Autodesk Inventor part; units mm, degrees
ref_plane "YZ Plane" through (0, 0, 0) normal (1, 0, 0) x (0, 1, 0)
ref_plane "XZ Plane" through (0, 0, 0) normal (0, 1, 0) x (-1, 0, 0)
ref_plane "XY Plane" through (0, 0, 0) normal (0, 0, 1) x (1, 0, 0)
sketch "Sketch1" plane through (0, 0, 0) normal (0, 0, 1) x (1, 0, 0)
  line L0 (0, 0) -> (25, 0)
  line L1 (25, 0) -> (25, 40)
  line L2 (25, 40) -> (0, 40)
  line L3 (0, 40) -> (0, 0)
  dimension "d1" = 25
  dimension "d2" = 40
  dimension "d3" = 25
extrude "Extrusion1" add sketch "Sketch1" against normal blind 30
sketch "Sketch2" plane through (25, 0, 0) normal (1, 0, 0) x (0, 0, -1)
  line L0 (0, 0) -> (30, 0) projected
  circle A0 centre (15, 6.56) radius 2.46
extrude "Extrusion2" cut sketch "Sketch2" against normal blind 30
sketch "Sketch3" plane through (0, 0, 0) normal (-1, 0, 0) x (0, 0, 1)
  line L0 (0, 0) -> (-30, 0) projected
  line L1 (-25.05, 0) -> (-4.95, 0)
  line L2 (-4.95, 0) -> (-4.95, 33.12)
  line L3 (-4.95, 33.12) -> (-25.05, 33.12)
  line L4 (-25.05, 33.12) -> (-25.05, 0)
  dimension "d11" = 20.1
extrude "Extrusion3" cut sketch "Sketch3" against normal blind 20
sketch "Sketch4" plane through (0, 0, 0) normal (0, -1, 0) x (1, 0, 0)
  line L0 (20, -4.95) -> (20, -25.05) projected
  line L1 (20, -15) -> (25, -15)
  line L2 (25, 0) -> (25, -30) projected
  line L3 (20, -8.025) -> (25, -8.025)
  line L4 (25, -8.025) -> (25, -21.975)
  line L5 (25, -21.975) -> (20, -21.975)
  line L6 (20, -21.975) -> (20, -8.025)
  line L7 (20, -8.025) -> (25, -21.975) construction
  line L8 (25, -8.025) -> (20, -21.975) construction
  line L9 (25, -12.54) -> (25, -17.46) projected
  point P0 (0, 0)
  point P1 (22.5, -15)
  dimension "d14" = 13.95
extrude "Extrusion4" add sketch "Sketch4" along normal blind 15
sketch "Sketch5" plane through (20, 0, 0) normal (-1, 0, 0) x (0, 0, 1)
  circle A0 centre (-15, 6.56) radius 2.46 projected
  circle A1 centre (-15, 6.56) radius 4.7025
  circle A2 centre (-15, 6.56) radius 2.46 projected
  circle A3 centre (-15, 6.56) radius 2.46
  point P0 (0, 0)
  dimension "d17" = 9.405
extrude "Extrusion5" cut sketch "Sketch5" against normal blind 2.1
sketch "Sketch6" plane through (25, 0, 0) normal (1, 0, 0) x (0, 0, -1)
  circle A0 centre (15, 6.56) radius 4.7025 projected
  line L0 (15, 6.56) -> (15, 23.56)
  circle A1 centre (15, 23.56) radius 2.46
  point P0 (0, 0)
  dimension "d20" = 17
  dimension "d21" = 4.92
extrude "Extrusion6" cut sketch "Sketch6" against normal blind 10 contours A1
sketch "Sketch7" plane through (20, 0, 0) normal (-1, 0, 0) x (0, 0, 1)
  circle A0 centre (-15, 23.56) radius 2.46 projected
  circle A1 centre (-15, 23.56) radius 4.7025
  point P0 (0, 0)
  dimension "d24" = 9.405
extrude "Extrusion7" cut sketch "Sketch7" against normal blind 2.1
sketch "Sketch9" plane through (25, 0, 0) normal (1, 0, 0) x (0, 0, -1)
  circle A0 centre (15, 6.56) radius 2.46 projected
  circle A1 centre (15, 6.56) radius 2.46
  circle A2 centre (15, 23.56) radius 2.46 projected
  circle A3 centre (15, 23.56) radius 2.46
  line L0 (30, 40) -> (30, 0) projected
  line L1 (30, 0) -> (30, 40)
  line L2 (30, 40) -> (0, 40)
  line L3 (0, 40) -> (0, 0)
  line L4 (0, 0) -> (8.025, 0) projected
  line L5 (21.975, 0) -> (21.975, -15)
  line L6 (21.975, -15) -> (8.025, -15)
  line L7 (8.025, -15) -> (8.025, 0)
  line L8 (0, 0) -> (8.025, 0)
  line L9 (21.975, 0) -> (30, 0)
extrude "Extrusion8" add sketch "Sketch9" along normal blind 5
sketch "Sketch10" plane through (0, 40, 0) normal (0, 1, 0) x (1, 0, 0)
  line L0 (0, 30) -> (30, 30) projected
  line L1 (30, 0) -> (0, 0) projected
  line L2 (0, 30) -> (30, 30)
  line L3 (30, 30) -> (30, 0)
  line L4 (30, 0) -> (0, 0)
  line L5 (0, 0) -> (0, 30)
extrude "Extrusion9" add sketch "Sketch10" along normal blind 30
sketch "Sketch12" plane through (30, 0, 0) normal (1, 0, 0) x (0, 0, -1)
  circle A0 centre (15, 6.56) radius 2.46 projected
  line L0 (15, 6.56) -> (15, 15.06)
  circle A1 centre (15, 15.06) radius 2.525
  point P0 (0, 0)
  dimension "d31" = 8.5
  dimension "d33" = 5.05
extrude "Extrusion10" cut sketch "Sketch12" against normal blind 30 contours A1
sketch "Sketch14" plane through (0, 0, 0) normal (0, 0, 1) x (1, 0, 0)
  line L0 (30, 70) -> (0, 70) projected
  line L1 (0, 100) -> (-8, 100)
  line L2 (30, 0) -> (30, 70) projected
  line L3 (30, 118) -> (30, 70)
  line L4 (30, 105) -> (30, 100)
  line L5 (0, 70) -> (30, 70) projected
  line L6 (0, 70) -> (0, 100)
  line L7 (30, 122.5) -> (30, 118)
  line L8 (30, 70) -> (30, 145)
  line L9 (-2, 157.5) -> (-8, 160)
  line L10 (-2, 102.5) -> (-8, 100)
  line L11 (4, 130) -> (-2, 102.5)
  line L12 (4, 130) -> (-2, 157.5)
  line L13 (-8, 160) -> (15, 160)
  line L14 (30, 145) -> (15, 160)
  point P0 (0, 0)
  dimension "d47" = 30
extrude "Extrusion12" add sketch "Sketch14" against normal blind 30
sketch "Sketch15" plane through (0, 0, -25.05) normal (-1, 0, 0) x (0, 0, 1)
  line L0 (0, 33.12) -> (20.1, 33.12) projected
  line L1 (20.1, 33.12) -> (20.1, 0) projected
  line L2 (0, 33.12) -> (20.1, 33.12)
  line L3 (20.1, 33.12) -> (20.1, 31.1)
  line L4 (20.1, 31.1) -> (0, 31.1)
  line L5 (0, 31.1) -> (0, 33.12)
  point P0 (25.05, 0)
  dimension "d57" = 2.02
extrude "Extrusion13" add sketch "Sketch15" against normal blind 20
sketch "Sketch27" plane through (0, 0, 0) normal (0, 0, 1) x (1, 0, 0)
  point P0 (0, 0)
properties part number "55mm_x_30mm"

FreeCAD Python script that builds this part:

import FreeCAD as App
import Part
import Sketcher

V = App.Vector
Q = App.Units.Quantity

doc = App.newDocument("Part")
body = doc.addObject("PartDesign::Body", "Body")

# Sketch on XY plane
sketch1 = body.newObject("Sketcher::SketchObject", "Sketch")
sketch1.AttachmentSupport = (doc.getObject("XY_Plane"), [""])
sketch1.MapMode = "FlatFace"
sketch1.addGeometry(Part.LineSegment(V(0, 40, 0), V(0, 0, 0)), False)
sketch1.addGeometry(Part.LineSegment(V(0, 0, 0), V(25, 0, 0)), False)
sketch1.addGeometry(Part.LineSegment(V(25, 0, 0), V(25, 40, 0)), False)
sketch1.addGeometry(Part.LineSegment(V(25, 40, 0), V(0, 40, 0)), False)
sketch1.addConstraint(Sketcher.Constraint("Coincident", 0, 2, 1, 1))
sketch1.addConstraint(Sketcher.Constraint("Coincident", 1, 2, 2, 1))
sketch1.addConstraint(Sketcher.Constraint("Coincident", 2, 2, 3, 1))
sketch1.addConstraint(Sketcher.Constraint("Coincident", 3, 2, 0, 1))
sketch1.addConstraint(Sketcher.Constraint("Vertical", 0))
sketch1.addConstraint(Sketcher.Constraint("Horizontal", 1))
sketch1.addConstraint(Sketcher.Constraint("Vertical", 2))
sketch1.addConstraint(Sketcher.Constraint("Horizontal", 3))
sketch1.addConstraint(Sketcher.Constraint("Coincident", 0, 2, -1, 1))
sketch1.addConstraint(Sketcher.Constraint("DistanceX", 1, 1, 1, 2, Q("25 mm")))
sketch1.addConstraint(Sketcher.Constraint("DistanceY", 0, 2, 0, 1, Q("40 mm")))
pad1 = body.newObject("PartDesign::Pad", "Pad")
pad1.Profile = sketch1
pad1.Length = 30
pad1.Reversed = True

# Sketch on YZ plane
sketch2 = body.newObject("Sketcher::SketchObject", "Sketch001")
sketch2.AttachmentSupport = (doc.getObject("YZ_Plane"), [""])
sketch2.MapMode = "FlatFace"
sketch2.AttachmentOffset = App.Placement(V(0, 0, 25), App.Rotation())
sketch2.addGeometry(Part.Circle(V(6.6, -15, 0), V(0, 0, 1), 2.5), False)
sketch2.addConstraint(Sketcher.Constraint("Diameter", 0, Q("4.92 mm")))
sketch2.addConstraint(Sketcher.Constraint("DistanceY", 0, 3, -1, 1, Q("15 mm")))
sketch2.addConstraint(Sketcher.Constraint("DistanceX", -1, 1, 0, 3, Q("6.56 mm")))
pocket1 = body.newObject("PartDesign::Pocket", "Pocket")
pocket1.Profile = sketch2
pocket1.Length = 30

# Sketch on YZ plane
sketch3 = body.newObject("Sketcher::SketchObject", "Sketch002")
sketch3.AttachmentSupport = (doc.getObject("YZ_Plane"), [""])
sketch3.MapMode = "FlatFace"
sketch3.addGeometry(Part.LineSegment(V(0, -25, 0), V(0, -5, 0)), False)
sketch3.addGeometry(Part.LineSegment(V(0, -5, 0), V(33, -5, 0)), False)
sketch3.addGeometry(Part.LineSegment(V(33, -5, 0), V(33, -25, 0)), False)
sketch3.addGeometry(Part.LineSegment(V(33, -25, 0), V(0, -25, 0)), False)
sketch3.addConstraint(Sketcher.Constraint("Coincident", 0, 2, 1, 1))
sketch3.addConstraint(Sketcher.Constraint("Coincident", 1, 2, 2, 1))
sketch3.addConstraint(Sketcher.Constraint("Coincident", 2, 2, 3, 1))
sketch3.addConstraint(Sketcher.Constraint("Coincident", 3, 2, 0, 1))
sketch3.addConstraint(Sketcher.Constraint("Vertical", 0))
sketch3.addConstraint(Sketcher.Constraint("Horizontal", 1))
sketch3.addConstraint(Sketcher.Constraint("Vertical", 2))
sketch3.addConstraint(Sketcher.Constraint("Horizontal", 3))
sketch3.addConstraint(Sketcher.Constraint("PointOnObject", 0, 2, -2))
sketch3.addConstraint(Sketcher.Constraint("DistanceY", 0, 1, 0, 2, Q("20.1 mm")))
sketch3.addConstraint(Sketcher.Constraint("DistanceX", 1, 1, 1, 2, Q("33.12 mm")))
sketch3.addConstraint(Sketcher.Constraint("DistanceY", 0, 2, -1, 1, Q("4.95 mm")))
pocket2 = body.newObject("PartDesign::Pocket", "Pocket001")
pocket2.Profile = sketch3
pocket2.Length = 20
pocket2.Reversed = True

# Sketch on XZ plane
sketch4 = body.newObject("Sketcher::SketchObject", "Sketch003")
sketch4.AttachmentSupport = (doc.getObject("XZ_Plane"), [""])
sketch4.MapMode = "FlatFace"
sketch4.addGeometry(Part.LineSegment(V(25, -8, 0), V(20, -8, 0)), False)
sketch4.addGeometry(Part.LineSegment(V(20, -8, 0), V(20, -22, 0)), False)
sketch4.addGeometry(Part.LineSegment(V(20, -22, 0), V(25, -22, 0)), False)
sketch4.addGeometry(Part.LineSegment(V(25, -22, 0), V(25, -8, 0)), False)
sketch4.addConstraint(Sketcher.Constraint("Coincident", 0, 2, 1, 1))
sketch4.addConstraint(Sketcher.Constraint("Coincident", 1, 2, 2, 1))
sketch4.addConstraint(Sketcher.Constraint("Coincident", 2, 2, 3, 1))
sketch4.addConstraint(Sketcher.Constraint("Coincident", 3, 2, 0, 1))
sketch4.addConstraint(Sketcher.Constraint("Horizontal", 0))
sketch4.addConstraint(Sketcher.Constraint("Vertical", 1))
sketch4.addConstraint(Sketcher.Constraint("Horizontal", 2))
sketch4.addConstraint(Sketcher.Constraint("Vertical", 3))
sketch4.addConstraint(Sketcher.Constraint("DistanceY", 1, 2, 1, 1, Q("13.95 mm")))
sketch4.addConstraint(Sketcher.Constraint("DistanceX", 0, 2, 0, 1, Q("5 mm")))
sketch4.addConstraint(Sketcher.Constraint("DistanceX", -1, 1, 0, 2, Q("20 mm")))
sketch4.addConstraint(Sketcher.Constraint("DistanceY", 0, 2, -1, 1, Q("8.025 mm")))
pad2 = body.newObject("PartDesign::Pad", "Pad001")
pad2.Profile = sketch4
pad2.Length = 15

# Sketch on YZ plane
sketch5 = body.newObject("Sketcher::SketchObject", "Sketch004")
sketch5.AttachmentSupport = (doc.getObject("YZ_Plane"), [""])
sketch5.MapMode = "FlatFace"
sketch5.AttachmentOffset = App.Placement(V(0, 0, 20), App.Rotation())
sketch5.addGeometry(Part.Circle(V(6.6, -15, 0), V(0, 0, 1), 4.7), False)
sketch5.addGeometry(Part.Circle(V(6.6, -15, 0), V(0, 0, 1), 2.5), False)
sketch5.addConstraint(Sketcher.Constraint("Coincident", 1, 3, 0, 3))
sketch5.addConstraint(Sketcher.Constraint("Diameter", 0, Q("9.405 mm")))
sketch5.addConstraint(Sketcher.Constraint("Diameter", 1, Q("4.92 mm")))
sketch5.addConstraint(Sketcher.Constraint("DistanceY", 0, 3, -1, 1, Q("15 mm")))
sketch5.addConstraint(Sketcher.Constraint("DistanceX", -1, 1, 0, 3, Q("6.56 mm")))
pocket3 = body.newObject("PartDesign::Pocket", "Pocket002")
pocket3.Profile = sketch5
pocket3.Length = 2.1
pocket3.Reversed = True

# Sketch on YZ plane
sketch6 = body.newObject("Sketcher::SketchObject", "Sketch005")
sketch6.AttachmentSupport = (doc.getObject("YZ_Plane"), [""])
sketch6.MapMode = "FlatFace"
sketch6.AttachmentOffset = App.Placement(V(0, 0, 25), App.Rotation())
sketch6.addGeometry(Part.Circle(V(23.6, -15, 0), V(0, 0, 1), 2.5), False)
sketch6.addConstraint(Sketcher.Constraint("Diameter", 0, Q("4.92 mm")))
sketch6.addConstraint(Sketcher.Constraint("DistanceY", 0, 3, -1, 1, Q("15 mm")))
sketch6.addConstraint(Sketcher.Constraint("DistanceX", -1, 1, 0, 3, Q("23.56 mm")))
pocket4 = body.newObject("PartDesign::Pocket", "Pocket003")
pocket4.Profile = sketch6
pocket4.Length = 10

# Sketch on YZ plane
sketch7 = body.newObject("Sketcher::SketchObject", "Sketch006")
sketch7.AttachmentSupport = (doc.getObject("YZ_Plane"), [""])
sketch7.MapMode = "FlatFace"
sketch7.AttachmentOffset = App.Placement(V(0, 0, 20), App.Rotation())
sketch7.addGeometry(Part.Circle(V(23.6, -15, 0), V(0, 0, 1), 4.7), False)
sketch7.addGeometry(Part.Circle(V(23.6, -15, 0), V(0, 0, 1), 2.5), False)
sketch7.addConstraint(Sketcher.Constraint("Coincident", 1, 3, 0, 3))
sketch7.addConstraint(Sketcher.Constraint("Diameter", 0, Q("9.405 mm")))
sketch7.addConstraint(Sketcher.Constraint("Diameter", 1, Q("4.92 mm")))
sketch7.addConstraint(Sketcher.Constraint("DistanceY", 0, 3, -1, 1, Q("15 mm")))
sketch7.addConstraint(Sketcher.Constraint("DistanceX", -1, 1, 0, 3, Q("23.56 mm")))
pocket5 = body.newObject("PartDesign::Pocket", "Pocket004")
pocket5.Profile = sketch7
pocket5.Length = 2.1
pocket5.Reversed = True

# Sketch on YZ plane
sketch8 = body.newObject("Sketcher::SketchObject", "Sketch007")
sketch8.AttachmentSupport = (doc.getObject("YZ_Plane"), [""])
sketch8.MapMode = "FlatFace"
sketch8.AttachmentOffset = App.Placement(V(0, 0, 25), App.Rotation())
sketch8.addGeometry(Part.LineSegment(V(0, -30, 0), V(40, -30, 0)), False)
sketch8.addGeometry(Part.LineSegment(V(40, -30, 0), V(40, 0, 0)), False)
sketch8.addGeometry(Part.LineSegment(V(40, 0, 0), V(0, 0, 0)), False)
sketch8.addGeometry(Part.LineSegment(V(0, 0, 0), V(0, -8, 0)), False)
sketch8.addGeometry(Part.LineSegment(V(0, -8, 0), V(-15, -8, 0)), False)
sketch8.addGeometry(Part.LineSegment(V(-15, -8, 0), V(-15, -22, 0)), False)
sketch8.addGeometry(Part.LineSegment(V(-15, -22, 0), V(0, -22, 0)), False)
sketch8.addGeometry(Part.LineSegment(V(0, -22, 0), V(0, -30, 0)), False)
sketch8.addGeometry(Part.Circle(V(6.6, -15, 0), V(0, 0, 1), 2.5), False)
sketch8.addGeometry(Part.Circle(V(23.6, -15, 0), V(0, 0, 1), 2.5), False)
sketch8.addConstraint(Sketcher.Constraint("Coincident", 0, 2, 1, 1))
sketch8.addConstraint(Sketcher.Constraint("Coincident", 1, 2, 2, 1))
sketch8.addConstraint(Sketcher.Constraint("Coincident", 2, 2, 3, 1))
sketch8.addConstraint(Sketcher.Constraint("Coincident", 3, 2, 4, 1))
sketch8.addConstraint(Sketcher.Constraint("Coincident", 4, 2, 5, 1))
sketch8.addConstraint(Sketcher.Constraint("Coincident", 5, 2, 6, 1))
sketch8.addConstraint(Sketcher.Constraint("Coincident", 6, 2, 7, 1))
sketch8.addConstraint(Sketcher.Constraint("Coincident", 7, 2, 0, 1))
sketch8.addConstraint(Sketcher.Constraint("Horizontal", 0))
sketch8.addConstraint(Sketcher.Constraint("Vertical", 1))
sketch8.addConstraint(Sketcher.Constraint("Horizontal", 2))
sketch8.addConstraint(Sketcher.Constraint("Vertical", 3))
sketch8.addConstraint(Sketcher.Constraint("Horizontal", 4))
sketch8.addConstraint(Sketcher.Constraint("Vertical", 5))
sketch8.addConstraint(Sketcher.Constraint("Horizontal", 6))
sketch8.addConstraint(Sketcher.Constraint("Vertical", 7))
sketch8.addConstraint(Sketcher.Constraint("Coincident", 2, 2, -1, 1))
sketch8.addConstraint(Sketcher.Constraint("Equal", 8, 9))
sketch8.addConstraint(Sketcher.Constraint("PointOnObject", 6, 2, -2))
sketch8.addConstraint(Sketcher.Constraint("Horizontal", 8, 3, 9, 3))
sketch8.addConstraint(Sketcher.Constraint("Equal", 3, 7))
sketch8.addConstraint(Sketcher.Constraint("Diameter", 8, Q("4.92 mm")))
sketch8.addConstraint(Sketcher.Constraint("DistanceX", 0, 1, 0, 2, Q("40 mm")))
sketch8.addConstraint(Sketcher.Constraint("DistanceX", 4, 2, 4, 1, Q("15 mm")))
sketch8.addConstraint(Sketcher.Constraint("DistanceY", 1, 1, 1, 2, Q("30 mm")))
sketch8.addConstraint(Sketcher.Constraint("DistanceY", 8, 3, -1, 1, Q("15 mm")))
sketch8.addConstraint(Sketcher.Constraint("DistanceX", 8, 3, 9, 3, Q("17 mm")))
sketch8.addConstraint(Sketcher.Constraint("DistanceY", 5, 2, 5, 1, Q("13.95 mm")))
sketch8.addConstraint(Sketcher.Constraint("DistanceX", -1, 1, 8, 3, Q("6.56 mm")))
pad3 = body.newObject("PartDesign::Pad", "Pad002")
pad3.Profile = sketch8
pad3.Length = 5

# Sketch on XZ plane
sketch9 = body.newObject("Sketcher::SketchObject", "Sketch008")
sketch9.AttachmentSupport = (doc.getObject("XZ_Plane"), [""])
sketch9.MapMode = "FlatFace"
sketch9.AttachmentOffset = App.Placement(V(0, 0, -40), App.Rotation())
sketch9.addGeometry(Part.LineSegment(V(30, -30, 0), V(0, -30, 0)), False)
sketch9.addGeometry(Part.LineSegment(V(0, -30, 0), V(0, 0, 0)), False)
sketch9.addGeometry(Part.LineSegment(V(0, 0, 0), V(30, 0, 0)), False)
sketch9.addGeometry(Part.LineSegment(V(30, 0, 0), V(30, -30, 0)), False)
sketch9.addConstraint(Sketcher.Constraint("Coincident", 0, 2, 1, 1))
sketch9.addConstraint(Sketcher.Constraint("Coincident", 1, 2, 2, 1))
sketch9.addConstraint(Sketcher.Constraint("Coincident", 2, 2, 3, 1))
sketch9.addConstraint(Sketcher.Constraint("Coincident", 3, 2, 0, 1))
sketch9.addConstraint(Sketcher.Constraint("Horizontal", 0))
sketch9.addConstraint(Sketcher.Constraint("Vertical", 1))
sketch9.addConstraint(Sketcher.Constraint("Horizontal", 2))
sketch9.addConstraint(Sketcher.Constraint("Vertical", 3))
sketch9.addConstraint(Sketcher.Constraint("Coincident", 1, 2, -1, 1))
sketch9.addConstraint(Sketcher.Constraint("Equal", 2, 1))
sketch9.addConstraint(Sketcher.Constraint("DistanceX", 0, 2, 0, 1, Q("30 mm")))
pad4 = body.newObject("PartDesign::Pad", "Pad003")
pad4.Profile = sketch9
pad4.Length = 30
pad4.Reversed = True

# Sketch on YZ plane
sketch10 = body.newObject("Sketcher::SketchObject", "Sketch009")
sketch10.AttachmentSupport = (doc.getObject("YZ_Plane"), [""])
sketch10.MapMode = "FlatFace"
sketch10.AttachmentOffset = App.Placement(V(0, 0, 30), App.Rotation())
sketch10.addGeometry(Part.Circle(V(15.1, -15, 0), V(0, 0, 1), 2.5), False)
sketch10.addConstraint(Sketcher.Constraint("Diameter", 0, Q("5.05 mm")))
sketch10.addConstraint(Sketcher.Constraint("DistanceY", 0, 3, -1, 1, Q("15 mm")))
sketch10.addConstraint(Sketcher.Constraint("DistanceX", -1, 1, 0, 3, Q("15.06 mm")))
pocket6 = body.newObject("PartDesign::Pocket", "Pocket005")
pocket6.Profile = sketch10
pocket6.Length = 30

# Sketch on XY plane
sketch11 = body.newObject("Sketcher::SketchObject", "Sketch010")
sketch11.AttachmentSupport = (doc.getObject("XY_Plane"), [""])
sketch11.MapMode = "FlatFace"
sketch11.addGeometry(Part.LineSegment(V(0, 70, 0), V(30, 70, 0)), False)
sketch11.addGeometry(Part.LineSegment(V(30, 70, 0), V(30, 145, 0)), False)
sketch11.addGeometry(Part.LineSegment(V(30, 145, 0), V(15, 160, 0)), False)
sketch11.addGeometry(Part.LineSegment(V(15, 160, 0), V(-8, 160, 0)), False)
sketch11.addGeometry(Part.LineSegment(V(-8, 160, 0), V(-2, 158, 0)), False)
sketch11.addGeometry(Part.LineSegment(V(-2, 158, 0), V(4, 130, 0)), False)
sketch11.addGeometry(Part.LineSegment(V(4, 130, 0), V(-2, 102, 0)), False)
sketch11.addGeometry(Part.LineSegment(V(-2, 102, 0), V(-8, 100, 0)), False)
sketch11.addGeometry(Part.LineSegment(V(-8, 100, 0), V(0, 100, 0)), False)
sketch11.addGeometry(Part.LineSegment(V(0, 100, 0), V(0, 70, 0)), False)
sketch11.addConstraint(Sketcher.Constraint("Coincident", 0, 2, 1, 1))
sketch11.addConstraint(Sketcher.Constraint("Coincident", 1, 2, 2, 1))
sketch11.addConstraint(Sketcher.Constraint("Coincident", 2, 2, 3, 1))
sketch11.addConstraint(Sketcher.Constraint("Coincident", 3, 2, 4, 1))
sketch11.addConstraint(Sketcher.Constraint("Coincident", 4, 2, 5, 1))
sketch11.addConstraint(Sketcher.Constraint("Coincident", 5, 2, 6, 1))
sketch11.addConstraint(Sketcher.Constraint("Coincident", 6, 2, 7, 1))
sketch11.addConstraint(Sketcher.Constraint("Coincident", 7, 2, 8, 1))
sketch11.addConstraint(Sketcher.Constraint("Coincident", 8, 2, 9, 1))
sketch11.addConstraint(Sketcher.Constraint("Coincident", 9, 2, 0, 1))
sketch11.addConstraint(Sketcher.Constraint("Horizontal", 0))
sketch11.addConstraint(Sketcher.Constraint("Vertical", 1))
sketch11.addConstraint(Sketcher.Constraint("Horizontal", 3))
sketch11.addConstraint(Sketcher.Constraint("Horizontal", 8))
sketch11.addConstraint(Sketcher.Constraint("Vertical", 9))
sketch11.addConstraint(Sketcher.Constraint("PointOnObject", 8, 2, -2))
sketch11.addConstraint(Sketcher.Constraint("Vertical", 4, 2, 6, 2))
sketch11.addConstraint(Sketcher.Constraint("Vertical", 3, 2, 7, 2))
sketch11.addConstraint(Sketcher.Constraint("Equal", 0, 9))
sketch11.addConstraint(Sketcher.Constraint("Equal", 5, 6))
sketch11.addConstraint(Sketcher.Constraint("Equal", 4, 7))
sketch11.addConstraint(Sketcher.Constraint("DistanceX", 0, 1, 0, 2, Q("30 mm")))
sketch11.addConstraint(Sketcher.Constraint("DistanceY", 5, 2, 2, 2, Q("30 mm")))
sketch11.addConstraint(Sketcher.Constraint("DistanceX", 3, 2, 3, 1, Q("23 mm")))
sketch11.addConstraint(Sketcher.Constraint("DistanceX", 8, 1, 8, 2, Q("8 mm")))
sketch11.addConstraint(Sketcher.Constraint("DistanceY", 1, 1, 1, 2, Q("75 mm")))
sketch11.addConstraint(Sketcher.Constraint("DistanceY", -1, 1, 0, 2, Q("70 mm")))
sketch11.addConstraint(Sketcher.Constraint("DistanceX", 4, 2, -1, 1, Q("2 mm")))
sketch11.addConstraint(Sketcher.Constraint("DistanceX", -1, 1, 5, 2, Q("4 mm")))
sketch11.addConstraint(Sketcher.Constraint("DistanceY", 6, 2, 4, 2, Q("55 mm")))
pad5 = body.newObject("PartDesign::Pad", "Pad004")
pad5.Profile = sketch11
pad5.Length = 30
pad5.Reversed = True

# Sketch on YZ plane
sketch12 = body.newObject("Sketcher::SketchObject", "Sketch011")
sketch12.AttachmentSupport = (doc.getObject("YZ_Plane"), [""])
sketch12.MapMode = "FlatFace"
sketch12.addGeometry(Part.LineSegment(V(33.1, -5, 0), V(33.1, -25.1, 0)), False)
sketch12.addGeometry(Part.LineSegment(V(33.1, -25.1, 0), V(31.1, -25.1, 0)), False)
sketch12.addGeometry(Part.LineSegment(V(31.1, -25.1, 0), V(31.1, -5, 0)), False)
sketch12.addGeometry(Part.LineSegment(V(31.1, -5, 0), V(33.1, -5, 0)), False)
sketch12.addConstraint(Sketcher.Constraint("Coincident", 0, 2, 1, 1))
sketch12.addConstraint(Sketcher.Constraint("Coincident", 1, 2, 2, 1))
sketch12.addConstraint(Sketcher.Constraint("Coincident", 2, 2, 3, 1))
sketch12.addConstraint(Sketcher.Constraint("Coincident", 3, 2, 0, 1))
sketch12.addConstraint(Sketcher.Constraint("Vertical", 0))
sketch12.addConstraint(Sketcher.Constraint("Horizontal", 1))
sketch12.addConstraint(Sketcher.Constraint("Vertical", 2))
sketch12.addConstraint(Sketcher.Constraint("Horizontal", 3))
sketch12.addConstraint(Sketcher.Constraint("DistanceX", 1, 2, 1, 1, Q("2.02 mm")))
sketch12.addConstraint(Sketcher.Constraint("DistanceY", 0, 2, 0, 1, Q("20.1 mm")))
sketch12.addConstraint(Sketcher.Constraint("DistanceX", -1, 1, 1, 2, Q("31.1 mm")))
sketch12.addConstraint(Sketcher.Constraint("DistanceY", 0, 2, -1, 1, Q("25.05 mm")))
pad6 = body.newObject("PartDesign::Pad", "Pad005")
pad6.Profile = sketch12
pad6.Length = 20

doc.recompute()
